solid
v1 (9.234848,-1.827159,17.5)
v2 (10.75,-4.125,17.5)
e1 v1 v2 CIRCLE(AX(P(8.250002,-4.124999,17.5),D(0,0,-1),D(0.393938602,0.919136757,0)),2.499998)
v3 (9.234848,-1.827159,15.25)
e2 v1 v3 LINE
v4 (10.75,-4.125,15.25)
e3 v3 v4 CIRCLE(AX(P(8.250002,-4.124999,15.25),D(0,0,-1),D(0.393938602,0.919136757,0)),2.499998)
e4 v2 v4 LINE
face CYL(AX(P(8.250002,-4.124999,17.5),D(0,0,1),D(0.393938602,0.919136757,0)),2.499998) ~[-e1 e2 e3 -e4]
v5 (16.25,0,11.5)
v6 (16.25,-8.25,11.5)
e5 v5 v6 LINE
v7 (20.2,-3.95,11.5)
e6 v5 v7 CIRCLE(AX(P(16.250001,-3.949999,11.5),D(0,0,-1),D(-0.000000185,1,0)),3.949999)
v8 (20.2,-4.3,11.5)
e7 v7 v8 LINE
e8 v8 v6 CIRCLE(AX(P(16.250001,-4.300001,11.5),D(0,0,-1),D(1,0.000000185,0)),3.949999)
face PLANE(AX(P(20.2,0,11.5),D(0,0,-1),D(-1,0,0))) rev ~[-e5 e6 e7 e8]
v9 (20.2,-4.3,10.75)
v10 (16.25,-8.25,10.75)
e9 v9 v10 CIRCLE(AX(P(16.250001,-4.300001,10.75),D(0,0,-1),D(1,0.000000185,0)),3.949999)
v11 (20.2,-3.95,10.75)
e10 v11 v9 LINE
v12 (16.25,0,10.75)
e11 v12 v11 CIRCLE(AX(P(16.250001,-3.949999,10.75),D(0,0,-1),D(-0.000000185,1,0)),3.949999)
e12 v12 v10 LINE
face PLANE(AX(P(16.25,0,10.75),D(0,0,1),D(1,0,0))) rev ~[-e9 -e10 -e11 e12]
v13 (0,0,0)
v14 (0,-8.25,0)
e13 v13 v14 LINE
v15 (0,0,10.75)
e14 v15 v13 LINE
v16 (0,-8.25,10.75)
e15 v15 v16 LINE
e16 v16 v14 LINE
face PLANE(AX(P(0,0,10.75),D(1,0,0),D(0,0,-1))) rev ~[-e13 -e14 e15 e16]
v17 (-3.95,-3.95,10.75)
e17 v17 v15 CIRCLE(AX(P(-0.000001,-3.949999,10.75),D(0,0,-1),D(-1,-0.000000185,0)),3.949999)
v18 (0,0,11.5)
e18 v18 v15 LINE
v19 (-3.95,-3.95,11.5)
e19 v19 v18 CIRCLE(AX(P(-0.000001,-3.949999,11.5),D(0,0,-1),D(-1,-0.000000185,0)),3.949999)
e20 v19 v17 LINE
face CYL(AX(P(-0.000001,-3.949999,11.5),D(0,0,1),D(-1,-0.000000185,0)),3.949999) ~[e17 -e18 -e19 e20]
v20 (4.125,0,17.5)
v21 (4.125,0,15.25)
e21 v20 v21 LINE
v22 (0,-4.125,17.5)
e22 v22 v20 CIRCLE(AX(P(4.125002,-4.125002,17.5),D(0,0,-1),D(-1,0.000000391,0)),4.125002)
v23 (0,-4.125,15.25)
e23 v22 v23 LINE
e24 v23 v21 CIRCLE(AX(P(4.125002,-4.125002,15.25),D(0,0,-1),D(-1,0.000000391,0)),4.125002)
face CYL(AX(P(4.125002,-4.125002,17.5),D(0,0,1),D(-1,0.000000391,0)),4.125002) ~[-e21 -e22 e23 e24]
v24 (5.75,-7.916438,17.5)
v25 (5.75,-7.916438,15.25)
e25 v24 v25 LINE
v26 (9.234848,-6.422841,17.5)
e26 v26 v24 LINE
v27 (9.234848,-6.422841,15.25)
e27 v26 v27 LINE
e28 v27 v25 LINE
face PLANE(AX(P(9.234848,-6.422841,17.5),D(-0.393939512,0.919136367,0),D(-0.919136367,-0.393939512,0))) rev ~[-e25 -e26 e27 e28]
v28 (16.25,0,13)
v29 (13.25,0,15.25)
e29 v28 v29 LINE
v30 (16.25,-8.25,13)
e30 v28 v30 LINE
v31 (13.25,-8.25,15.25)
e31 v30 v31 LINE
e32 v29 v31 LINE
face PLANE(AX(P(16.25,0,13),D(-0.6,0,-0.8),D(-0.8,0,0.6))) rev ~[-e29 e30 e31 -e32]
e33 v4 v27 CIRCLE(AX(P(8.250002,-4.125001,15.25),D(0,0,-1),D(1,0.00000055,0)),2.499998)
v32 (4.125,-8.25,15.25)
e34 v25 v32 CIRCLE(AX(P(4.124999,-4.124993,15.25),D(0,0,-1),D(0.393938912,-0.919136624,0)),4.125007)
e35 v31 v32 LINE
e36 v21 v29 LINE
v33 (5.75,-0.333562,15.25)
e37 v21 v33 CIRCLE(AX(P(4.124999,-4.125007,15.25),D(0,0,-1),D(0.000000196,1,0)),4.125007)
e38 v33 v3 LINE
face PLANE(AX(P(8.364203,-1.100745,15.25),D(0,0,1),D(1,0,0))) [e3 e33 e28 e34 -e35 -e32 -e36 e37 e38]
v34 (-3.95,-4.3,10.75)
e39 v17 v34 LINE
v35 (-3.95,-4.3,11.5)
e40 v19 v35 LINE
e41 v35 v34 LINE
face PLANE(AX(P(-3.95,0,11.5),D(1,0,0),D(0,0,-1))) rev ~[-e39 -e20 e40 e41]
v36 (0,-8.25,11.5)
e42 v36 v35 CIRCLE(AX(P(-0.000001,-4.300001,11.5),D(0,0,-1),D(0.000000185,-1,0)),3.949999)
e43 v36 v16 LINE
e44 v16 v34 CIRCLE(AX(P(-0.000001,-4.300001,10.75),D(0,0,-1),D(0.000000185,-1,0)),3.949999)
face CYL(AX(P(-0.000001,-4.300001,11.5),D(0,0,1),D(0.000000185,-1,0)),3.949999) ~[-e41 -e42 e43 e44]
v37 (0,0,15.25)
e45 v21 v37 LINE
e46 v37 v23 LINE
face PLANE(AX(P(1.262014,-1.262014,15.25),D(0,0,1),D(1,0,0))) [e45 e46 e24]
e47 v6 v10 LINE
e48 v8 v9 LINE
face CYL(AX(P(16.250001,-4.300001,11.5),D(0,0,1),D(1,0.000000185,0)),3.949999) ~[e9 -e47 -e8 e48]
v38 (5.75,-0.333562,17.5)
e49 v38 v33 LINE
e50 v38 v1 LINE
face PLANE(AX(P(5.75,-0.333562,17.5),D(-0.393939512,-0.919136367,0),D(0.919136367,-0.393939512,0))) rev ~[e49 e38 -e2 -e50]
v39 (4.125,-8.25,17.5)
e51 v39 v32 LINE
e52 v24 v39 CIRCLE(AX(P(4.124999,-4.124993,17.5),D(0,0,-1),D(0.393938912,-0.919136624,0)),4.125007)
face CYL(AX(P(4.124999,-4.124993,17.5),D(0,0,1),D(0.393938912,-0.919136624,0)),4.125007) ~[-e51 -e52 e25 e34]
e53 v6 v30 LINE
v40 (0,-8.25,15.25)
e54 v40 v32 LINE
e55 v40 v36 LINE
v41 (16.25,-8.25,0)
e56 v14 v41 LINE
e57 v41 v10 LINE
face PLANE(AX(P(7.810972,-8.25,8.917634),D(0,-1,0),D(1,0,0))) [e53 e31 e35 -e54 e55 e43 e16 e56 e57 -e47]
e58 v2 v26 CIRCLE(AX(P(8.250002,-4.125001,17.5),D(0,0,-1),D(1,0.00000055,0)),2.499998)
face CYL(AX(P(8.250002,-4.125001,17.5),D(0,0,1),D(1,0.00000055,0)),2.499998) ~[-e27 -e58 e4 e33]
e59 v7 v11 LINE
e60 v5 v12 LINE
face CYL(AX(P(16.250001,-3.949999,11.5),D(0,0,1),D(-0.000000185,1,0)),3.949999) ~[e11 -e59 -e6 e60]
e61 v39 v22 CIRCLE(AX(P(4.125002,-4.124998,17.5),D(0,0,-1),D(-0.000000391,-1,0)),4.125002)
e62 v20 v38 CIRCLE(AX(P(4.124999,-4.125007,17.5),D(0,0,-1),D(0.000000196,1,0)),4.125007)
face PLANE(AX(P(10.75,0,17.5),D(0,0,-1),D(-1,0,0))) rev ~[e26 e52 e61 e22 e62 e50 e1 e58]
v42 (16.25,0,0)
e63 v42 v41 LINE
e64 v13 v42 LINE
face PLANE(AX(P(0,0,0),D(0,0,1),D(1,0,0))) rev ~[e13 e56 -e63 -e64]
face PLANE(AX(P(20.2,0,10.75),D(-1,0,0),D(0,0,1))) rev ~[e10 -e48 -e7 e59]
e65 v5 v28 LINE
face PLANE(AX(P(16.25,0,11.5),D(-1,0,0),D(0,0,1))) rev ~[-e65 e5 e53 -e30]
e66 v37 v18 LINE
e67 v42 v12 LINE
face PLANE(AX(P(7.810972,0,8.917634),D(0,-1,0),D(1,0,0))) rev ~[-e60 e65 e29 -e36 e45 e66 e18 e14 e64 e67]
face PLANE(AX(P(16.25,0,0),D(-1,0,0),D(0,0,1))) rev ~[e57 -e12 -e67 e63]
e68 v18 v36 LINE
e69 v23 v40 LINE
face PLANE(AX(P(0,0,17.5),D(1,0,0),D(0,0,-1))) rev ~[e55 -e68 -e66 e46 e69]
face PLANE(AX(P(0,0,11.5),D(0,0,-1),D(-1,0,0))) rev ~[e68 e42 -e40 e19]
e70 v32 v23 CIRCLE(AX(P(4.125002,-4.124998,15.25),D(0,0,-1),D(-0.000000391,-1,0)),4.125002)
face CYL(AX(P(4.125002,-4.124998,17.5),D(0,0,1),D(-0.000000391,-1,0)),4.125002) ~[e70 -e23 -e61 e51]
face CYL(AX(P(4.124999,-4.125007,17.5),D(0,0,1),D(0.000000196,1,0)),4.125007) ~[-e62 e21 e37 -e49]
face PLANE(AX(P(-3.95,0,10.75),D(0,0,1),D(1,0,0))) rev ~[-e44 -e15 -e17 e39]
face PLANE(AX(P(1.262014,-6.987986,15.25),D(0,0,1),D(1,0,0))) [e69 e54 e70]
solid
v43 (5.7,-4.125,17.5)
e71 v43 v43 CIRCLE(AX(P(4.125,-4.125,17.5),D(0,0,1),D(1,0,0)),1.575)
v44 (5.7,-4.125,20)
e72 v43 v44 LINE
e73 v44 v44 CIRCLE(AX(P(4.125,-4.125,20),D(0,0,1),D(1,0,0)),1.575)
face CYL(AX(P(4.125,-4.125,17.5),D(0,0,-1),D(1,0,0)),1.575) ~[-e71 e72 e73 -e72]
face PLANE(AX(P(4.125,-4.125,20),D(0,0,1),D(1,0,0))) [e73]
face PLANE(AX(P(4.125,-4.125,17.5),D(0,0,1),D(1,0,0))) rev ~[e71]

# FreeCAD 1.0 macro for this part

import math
import FreeCAD as App
import Part
import Sketcher

V = App.Vector
Q = App.Units.Quantity


def add_polygon(sketch, points):
    """Adds a closed chain of lines whose ends are joined by coincident constraints."""
    first, n = sketch.GeometryCount, len(points)
    for a, b in zip(points, points[1:] + points[:1]):
        sketch.addGeometry(Part.LineSegment(App.Vector(*a, 0), App.Vector(*b, 0)), False)
    for i in range(n):
        sketch.addConstraint(Sketcher.Constraint("Coincident", first + i, 2, first + (i + 1) % n, 1))

doc = App.newDocument("Part")
body = doc.addObject("PartDesign::Body", "Body")

# Sketch on XZ plane
sketch1 = doc.addObject("Sketcher::SketchObject", "Sketch")
body.addObject(sketch1)
sketch1.AttachmentSupport = (doc.XZ_Plane, [""])
sketch1.MapMode = "FlatFace"
add_polygon(sketch1, [(0, 10.75), (0, 0), (16.25, 0), (16.25, 10.75), (20.2, 10.75), (20.2, 11.5), (16.25, 11.5), (16.25, 13), (13.25, 15.25), (10.75, 15.25), (10.75, 17.5), (0, 17.5), (0, 11.5), (-3.95, 11.5), (-3.95, 10.75)])  # lines 0-14
sketch1.addConstraint([
    Sketcher.Constraint("Vertical", 0),
    Sketcher.Constraint("Horizontal", 1),
    Sketcher.Constraint("Vertical", 2),
    Sketcher.Constraint("Horizontal", 3),
    Sketcher.Constraint("Vertical", 4),
    Sketcher.Constraint("Horizontal", 5),
    Sketcher.Constraint("Vertical", 6),
    Sketcher.Constraint("Horizontal", 8),
    Sketcher.Constraint("Vertical", 9),
    Sketcher.Constraint("Horizontal", 10),
    Sketcher.Constraint("Vertical", 11),
    Sketcher.Constraint("Horizontal", 12),
    Sketcher.Constraint("Vertical", 13),
    Sketcher.Constraint("Horizontal", 14),
    Sketcher.Constraint("Coincident", 0, 2, -1, 1),
    Sketcher.Constraint("PointOnObject", 10, 2, -2),
    Sketcher.Constraint("Horizontal", 5, 2, 11, 2),
    Sketcher.Constraint("Horizontal", 3, 2, 13, 2),
    Sketcher.Constraint("Vertical", 2, 2, 5, 2),
    Sketcher.Constraint("Equal", 5, 12),
    Sketcher.Constraint("Equal", 10, 0),
    Sketcher.Constraint("DistanceY", 11, 2, 11, 1, Q("6 mm")),
    Sketcher.Constraint("DistanceX", 8, 2, 8, 1, Q("2.5 mm")),
    Sketcher.Constraint("DistanceY", 6, 1, 6, 2, Q("1.5 mm")),
    Sketcher.Constraint("DistanceY", -1, 1, 6, 2, Q("13 mm")),
    Sketcher.Constraint("DistanceX", 7, 2, 6, 2, Q("3 mm")),
    Sketcher.Constraint("DistanceX", 1, 1, 1, 2, Q("16.25 mm")),
    Sketcher.Constraint("DistanceX", 3, 1, 3, 2, Q("3.95 mm")),
    Sketcher.Constraint("DistanceY", 9, 1, 9, 2, Q("2.25 mm")),
])
pad1 = doc.addObject("PartDesign::Pad", "Pad")
body.addObject(pad1)
pad1.Profile = sketch1
pad1.Length = 8.25

# Sketch on XY plane
sketch2 = doc.addObject("Sketcher::SketchObject", "Sketch001")
body.addObject(sketch2)
sketch2.AttachmentSupport = (doc.XY_Plane, [""])
sketch2.MapMode = "FlatFace"
sketch2.AttachmentOffset = App.Placement(V(0, 0, 11.5), App.Rotation())
sketch2.addGeometry([
    Part.ArcOfCircle(Part.Circle(V(-0.000001, -4.300001, 0), V(0, 0, 1), 3.949999), math.radians(179.999989), math.radians(270.000011)),  # 0
    Part.LineSegment(V(-3.95, -4.3, 0), V(-3.95, -8.25, 0)),  # 1
    Part.LineSegment(V(-3.95, -8.25, 0), V(0, -8.25, 0)),  # 2
    Part.ArcOfCircle(Part.Circle(V(-0.000001, -3.949999, 0), V(0, 0, 1), 3.949999), math.radians(89.999989), math.radians(180.000011)),  # 3
    Part.LineSegment(V(0, 0, 0), V(-3.95, 0, 0)),  # 4
    Part.LineSegment(V(-3.95, 0, 0), V(-3.95, -3.95, 0)),  # 5
    Part.LineSegment(V(20.2, 0, 0), V(16.25, 0, 0)),  # 6
    Part.ArcOfCircle(Part.Circle(V(16.250001, -3.949999, 0), V(0, 0, 1), 3.949999), math.radians(-0.000011), math.radians(90.000011)),  # 7
    Part.LineSegment(V(20.2, -3.95, 0), V(20.2, 0, 0)),  # 8
    Part.LineSegment(V(20.2, -8.25, 0), V(20.2, -4.3, 0)),  # 9
    Part.ArcOfCircle(Part.Circle(V(16.250001, -4.300001, 0), V(0, 0, 1), 3.949999), math.radians(-90.000011), math.radians(0.000011)),  # 10
    Part.LineSegment(V(16.25, -8.25, 0), V(20.2, -8.25, 0)),  # 11
], False)
sketch2.addConstraint([
    Sketcher.Constraint("Tangent", 0, 1, 1, 1),
    Sketcher.Constraint("Coincident", 1, 2, 2, 1),
    Sketcher.Constraint("Tangent", 2, 2, 0, 2),
    Sketcher.Constraint("Tangent", 3, 1, 4, 1),
    Sketcher.Constraint("Coincident", 4, 2, 5, 1),
    Sketcher.Constraint("Tangent", 5, 2, 3, 2),
    Sketcher.Constraint("Tangent", 6, 2, 7, 2),
    Sketcher.Constraint("Tangent", 7, 1, 8, 1),
    Sketcher.Constraint("Coincident", 8, 2, 6, 1),
    Sketcher.Constraint("Tangent", 9, 2, 10, 2),
    Sketcher.Constraint("Tangent", 10, 1, 11, 1),
    Sketcher.Constraint("Coincident", 11, 2, 9, 1),
    Sketcher.Constraint("Vertical", 1),
    Sketcher.Constraint("Horizontal", 2),
    Sketcher.Constraint("Horizontal", 4),
    Sketcher.Constraint("Vertical", 5),
    Sketcher.Constraint("Horizontal", 6),
    Sketcher.Constraint("Vertical", 8),
    Sketcher.Constraint("Vertical", 9),
    Sketcher.Constraint("Horizontal", 11),
    Sketcher.Constraint("Coincident", 3, 1, -1, 1),
    Sketcher.Constraint("Equal", 0, 3),
    Sketcher.Constraint("Equal", 3, 7),
    Sketcher.Constraint("Equal", 7, 10),
    Sketcher.Constraint("PointOnObject", 0, 3, -2),
    Sketcher.Constraint("PointOnObject", 6, 2, -1),
    Sketcher.Constraint("Horizontal", 0, 3, 10, 3),
    Sketcher.Constraint("Vertical", 7, 3, 10, 3),
    Sketcher.Constraint("Radius", 0, Q("3.949999 mm")),
    Sketcher.Constraint("DistanceY", 0, 3, -1, 1, Q("4.300001 mm")),
    Sketcher.Constraint("DistanceX", -1, 1, 7, 1, Q("20.2 mm")),
])
pocket1 = doc.addObject("PartDesign::Pocket", "Pocket")
body.addObject(pocket1)
pocket1.Profile = sketch2
pocket1.Type = "ThroughAll"

# Sketch on XY plane
sketch3 = doc.addObject("Sketcher::SketchObject", "Sketch002")
body.addObject(sketch3)
sketch3.AttachmentSupport = (doc.XY_Plane, [""])
sketch3.MapMode = "FlatFace"
sketch3.AttachmentOffset = App.Placement(V(0, 0, 17.5), App.Rotation())
sketch3.addGeometry([
    Part.ArcOfCircle(Part.Circle(V(4.125002, -4.124998, 0), V(0, 0, 1), 4.125002), math.radians(-179.999978), math.radians(-90.000022)),  # 0
    Part.LineSegment(V(0, -4.125, 0), V(0, -8.25, 0)),  # 1
    Part.LineSegment(V(0, -8.25, 0), V(4.125, -8.25, 0)),  # 2
    Part.ArcOfCircle(Part.Circle(V(4.125002, -4.125002, 0), V(0, 0, 1), 4.125002), math.radians(90.000022), math.radians(179.999978)),  # 3
    Part.LineSegment(V(4.125, 0, 0), V(0, 0, 0)),  # 4
    Part.LineSegment(V(0, 0, 0), V(0, -4.125, 0)),  # 5
    Part.ArcOfCircle(Part.Circle(V(4.124999, -4.125007, 0), V(0, 0, 1), 4.125007), math.radians(66.800187), math.radians(89.999989)),  # 6
    Part.LineSegment(V(5.75, -0.333562, 0), V(9.234848, -1.827159, 0)),  # 7
    Part.ArcOfCircle(Part.Circle(V(8.250002, -4.124999, 0), V(0, 0, 1), 2.499998), math.radians(-0.000032), math.radians(66.800206)),  # 8
    Part.LineSegment(V(10.75, -4.125, 0), V(10.75, 0, 0)),  # 9
    Part.LineSegment(V(10.75, 0, 0), V(4.125, 0, 0)),  # 10
    Part.LineSegment(V(10.75, -8.25, 0), V(10.75, -4.125, 0)),  # 11
    Part.ArcOfCircle(Part.Circle(V(8.250002, -4.125001, 0), V(0, 0, 1), 2.499998), math.radians(-66.800206), math.radians(0.000032)),  # 12
    Part.LineSegment(V(9.234848, -6.422841, 0), V(5.75, -7.916438, 0)),  # 13
    Part.ArcOfCircle(Part.Circle(V(4.124999, -4.124993, 0), V(0, 0, 1), 4.125007), math.radians(-89.999989), math.radians(-66.800187)),  # 14
    Part.LineSegment(V(4.125, -8.25, 0), V(10.75, -8.25, 0)),  # 15
], False)
sketch3.addConstraint([
    Sketcher.Constraint("Tangent", 0, 1, 1, 1),
    Sketcher.Constraint("Coincident", 1, 2, 2, 1),
    Sketcher.Constraint("Tangent", 2, 2, 0, 2),
    Sketcher.Constraint("Tangent", 3, 1, 4, 1),
    Sketcher.Constraint("Coincident", 4, 2, 5, 1),
    Sketcher.Constraint("Tangent", 5, 2, 3, 2),
    Sketcher.Constraint("Tangent", 6, 1, 7, 1),
    Sketcher.Constraint("Tangent", 7, 2, 8, 2),
    Sketcher.Constraint("Tangent", 8, 1, 9, 1),
    Sketcher.Constraint("Coincident", 9, 2, 10, 1),
    Sketcher.Constraint("Tangent", 10, 2, 6, 2),
    Sketcher.Constraint("Tangent", 11, 2, 12, 2),
    Sketcher.Constraint("Tangent", 12, 1, 13, 1),
    Sketcher.Constraint("Tangent", 13, 2, 14, 2),
    Sketcher.Constraint("Tangent", 14, 1, 15, 1),
    Sketcher.Constraint("Coincident", 15, 2, 11, 1),
    Sketcher.Constraint("Vertical", 1),
    Sketcher.Constraint("Horizontal", 2),
    Sketcher.Constraint("Horizontal", 4),
    Sketcher.Constraint("Vertical", 5),
    Sketcher.Constraint("Vertical", 9),
    Sketcher.Constraint("Horizontal", 10),
    Sketcher.Constraint("Vertical", 11),
    Sketcher.Constraint("Horizontal", 15),
    Sketcher.Constraint("Coincident", 4, 2, -1, 1),
    Sketcher.Constraint("Coincident", 3, 3, 0, 3),
    Sketcher.Constraint("Coincident", 6, 3, 0, 3),
    Sketcher.Constraint("Coincident", 12, 3, 8, 3),
    Sketcher.Constraint("Coincident", 14, 3, 0, 3),
    Sketcher.Constraint("Equal", 0, 3),
    Sketcher.Constraint("Equal", 8, 12),
    Sketcher.Constraint("Equal", 6, 14),
    Sketcher.Constraint("PointOnObject", 9, 2, -1),
    Sketcher.Constraint("Horizontal", 0, 3, 8, 3),
    Sketcher.Constraint("Radius", 0, Q("4.125002 mm")),
    Sketcher.Constraint("DistanceX", 6, 1, 8, 1, Q("5 mm")),
    Sketcher.Constraint("DistanceX", 10, 2, 10, 1, Q("6.625 mm")),
])
pocket2 = doc.addObject("PartDesign::Pocket", "Pocket001")
body.addObject(pocket2)
pocket2.Profile = sketch3
pocket2.Length = 2.25
body2 = doc.addObject("PartDesign::Body", "Body001")

# Sketch on XY plane
sketch4 = doc.addObject("Sketcher::SketchObject", "Sketch003")
body2.addObject(sketch4)
sketch4.AttachmentSupport = (doc.getObject("XY_Plane001"), [""])
sketch4.MapMode = "FlatFace"
sketch4.AttachmentOffset = App.Placement(V(0, 0, 17.5), App.Rotation())
sketch4.addGeometry(Part.Circle(V(4.125, -4.125, 0), V(0, 0, 1), 1.575), False)
sketch4.addConstraint([
    Sketcher.Constraint("Diameter", 0, Q("3.15 mm")),
    Sketcher.Constraint("DistanceX", -1, 1, 0, 3, Q("4.125 mm")),
    Sketcher.Constraint("DistanceY", 0, 3, -1, 1, Q("4.125 mm")),
])
pad2 = doc.addObject("PartDesign::Pad", "Pad001")
body2.addObject(pad2)
pad2.Profile = sketch4
pad2.Length = 2.5

doc.recompute()
